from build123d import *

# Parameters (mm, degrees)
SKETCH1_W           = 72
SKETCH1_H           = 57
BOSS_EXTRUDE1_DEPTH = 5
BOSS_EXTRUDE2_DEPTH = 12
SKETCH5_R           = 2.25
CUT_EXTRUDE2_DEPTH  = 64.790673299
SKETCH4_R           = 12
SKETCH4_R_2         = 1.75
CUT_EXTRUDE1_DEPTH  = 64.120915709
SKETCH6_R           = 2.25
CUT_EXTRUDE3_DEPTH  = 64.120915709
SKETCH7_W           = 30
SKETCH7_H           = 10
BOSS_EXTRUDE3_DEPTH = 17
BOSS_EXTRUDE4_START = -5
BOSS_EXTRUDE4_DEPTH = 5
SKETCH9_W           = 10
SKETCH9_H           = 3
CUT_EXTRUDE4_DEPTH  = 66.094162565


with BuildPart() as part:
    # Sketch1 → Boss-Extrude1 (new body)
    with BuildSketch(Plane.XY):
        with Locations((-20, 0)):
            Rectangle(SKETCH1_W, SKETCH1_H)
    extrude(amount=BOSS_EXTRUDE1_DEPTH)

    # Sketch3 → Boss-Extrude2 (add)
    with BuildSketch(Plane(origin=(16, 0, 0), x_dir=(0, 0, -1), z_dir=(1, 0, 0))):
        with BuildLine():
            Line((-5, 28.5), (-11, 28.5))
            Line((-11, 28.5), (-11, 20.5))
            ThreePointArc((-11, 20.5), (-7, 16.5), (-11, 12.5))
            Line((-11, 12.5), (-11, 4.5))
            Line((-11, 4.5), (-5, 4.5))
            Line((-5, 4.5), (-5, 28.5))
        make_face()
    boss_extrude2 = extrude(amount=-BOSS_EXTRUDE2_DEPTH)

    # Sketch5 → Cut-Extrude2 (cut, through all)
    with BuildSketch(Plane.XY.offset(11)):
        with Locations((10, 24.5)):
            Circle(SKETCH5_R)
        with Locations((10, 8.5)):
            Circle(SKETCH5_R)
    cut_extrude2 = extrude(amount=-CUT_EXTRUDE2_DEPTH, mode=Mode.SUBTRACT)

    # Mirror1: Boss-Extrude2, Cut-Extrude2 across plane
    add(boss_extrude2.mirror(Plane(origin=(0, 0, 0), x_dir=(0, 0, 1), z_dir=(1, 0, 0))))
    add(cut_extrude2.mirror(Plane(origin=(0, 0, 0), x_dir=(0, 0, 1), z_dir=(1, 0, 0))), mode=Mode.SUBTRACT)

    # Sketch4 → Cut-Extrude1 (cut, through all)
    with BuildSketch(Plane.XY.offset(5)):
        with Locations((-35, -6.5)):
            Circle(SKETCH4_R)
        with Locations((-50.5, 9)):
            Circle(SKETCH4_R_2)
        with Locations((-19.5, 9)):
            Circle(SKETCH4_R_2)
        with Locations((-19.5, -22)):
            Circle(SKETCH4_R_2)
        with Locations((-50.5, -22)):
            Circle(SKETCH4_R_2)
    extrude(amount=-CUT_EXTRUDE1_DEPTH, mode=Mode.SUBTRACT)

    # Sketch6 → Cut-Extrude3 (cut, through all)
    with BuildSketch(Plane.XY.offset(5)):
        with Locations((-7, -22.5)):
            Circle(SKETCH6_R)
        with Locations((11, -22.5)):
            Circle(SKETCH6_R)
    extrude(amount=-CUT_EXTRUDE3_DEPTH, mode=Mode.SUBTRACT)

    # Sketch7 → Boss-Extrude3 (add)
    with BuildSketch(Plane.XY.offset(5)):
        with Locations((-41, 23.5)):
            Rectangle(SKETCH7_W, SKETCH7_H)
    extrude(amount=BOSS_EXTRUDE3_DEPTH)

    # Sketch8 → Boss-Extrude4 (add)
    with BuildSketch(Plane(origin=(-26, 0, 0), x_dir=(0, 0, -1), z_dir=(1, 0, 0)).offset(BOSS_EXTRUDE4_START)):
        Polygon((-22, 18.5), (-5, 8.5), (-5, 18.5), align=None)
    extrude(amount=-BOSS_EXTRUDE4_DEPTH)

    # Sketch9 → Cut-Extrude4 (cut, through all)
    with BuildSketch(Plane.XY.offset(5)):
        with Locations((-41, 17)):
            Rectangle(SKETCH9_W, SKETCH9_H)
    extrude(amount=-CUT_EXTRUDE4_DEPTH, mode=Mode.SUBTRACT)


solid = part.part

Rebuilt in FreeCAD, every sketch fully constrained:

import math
import FreeCAD as App
import Part
import Sketcher

V = App.Vector


def add_polygon(sketch, points):
    """Adds a closed chain of lines whose ends are joined by coincident constraints."""
    first, n = sketch.GeometryCount, len(points)
    for a, b in zip(points, points[1:] + points[:1]):
        sketch.addGeometry(Part.LineSegment(App.Vector(*a, 0), App.Vector(*b, 0)), False)
    for i in range(n):
        sketch.addConstraint(Sketcher.Constraint("Coincident", first + i, 2, first + (i + 1) % n, 1))

doc = App.newDocument("Part")
params = doc.addObject("Spreadsheet::Sheet", "Params")
for row, (alias, value) in enumerate([
    ("sketch1_width", "72 mm"),
    ("sketch1_height", "57 mm"),
    ("pad1_length", "5 mm"),
    ("sketch2_radius", "4 mm"),
    ("sketch2_width", "8 mm"),
    ("sketch2_height", "6 mm"),
    ("pad2_length", "12 mm"),
    ("sketch3_diameter", "4.5 mm"),
    ("sketch4_diameter", "24 mm"),
    ("sketch4_diameter2", "3.5 mm"),
    ("sketch5_diameter", "4.5 mm"),
    ("sketch6_width", "30 mm"),
    ("sketch6_height", "10 mm"),
    ("pad3_length", "17 mm"),
    ("sketch7_width", "10 mm"),
    ("sketch7_height", "17 mm"),
    ("pad4_length", "5 mm"),
    ("sketch8_width", "10 mm"),
    ("sketch8_height", "3 mm"),
], start=1):
    params.set(f"A{row}", alias)
    params.set(f"B{row}", "=" + value)
    params.setAlias(f"B{row}", alias)

body = doc.addObject("PartDesign::Body", "Body")

# Sketch on XY plane
sketch1 = body.newObject("Sketcher::SketchObject", "Sketch")
sketch1.AttachmentSupport = (doc.getObject("XY_Plane"), [""])
sketch1.MapMode = "FlatFace"
add_polygon(sketch1, [(-56, 28), (-56, -28), (16, -28), (16, 28)])  # lines 0-3
sketch1.addConstraint([
    Sketcher.Constraint("Vertical", 0),
    Sketcher.Constraint("Horizontal", 1),
    Sketcher.Constraint("Vertical", 2),
    Sketcher.Constraint("Horizontal", 3),
    Sketcher.Constraint("DistanceX", 1, 1, 1, 2, 72.0),
    Sketcher.Constraint("DistanceY", 0, 2, 0, 1, 57.0),
    Sketcher.Constraint("DistanceX", 0, 2, -1, 1, 56.0),
    Sketcher.Constraint("DistanceY", 0, 2, -1, 1, 28.5),
])
sketch1.setExpression("Constraints[8]", "Params.sketch1_width")
sketch1.setExpression("Constraints[9]", "Params.sketch1_height")
pad1 = body.newObject("PartDesign::Pad", "Pad")
pad1.Profile = sketch1
pad1.setExpression("Length", "Params.pad1_length")

# Sketch on YZ plane
sketch2 = body.newObject("Sketcher::SketchObject", "Sketch001")
sketch2.AttachmentSupport = (doc.getObject("YZ_Plane"), [""])
sketch2.MapMode = "FlatFace"
sketch2.AttachmentOffset = App.Placement(V(0, 0, 16), App.Rotation())
sketch2.addGeometry([
    Part.LineSegment(V(28.5, 5, 0), V(28.5, 11, 0)),  # 0
    Part.LineSegment(V(28.5, 11, 0), V(20.5, 11, 0)),  # 1
    Part.ArcOfCircle(Part.Circle(V(16.5, 11, 0), V(0, 0, 1), 4), math.radians(180), math.radians(360)),  # 2
    Part.LineSegment(V(12.5, 11, 0), V(4.5, 11, 0)),  # 3
    Part.LineSegment(V(4.5, 11, 0), V(4.5, 5, 0)),  # 4
    Part.LineSegment(V(4.5, 5, 0), V(28.5, 5, 0)),  # 5
], False)
sketch2.addConstraint([
    Sketcher.Constraint("Coincident", 0, 2, 1, 1),
    Sketcher.Constraint("Coincident", 1, 2, 2, 2),
    Sketcher.Constraint("Coincident", 2, 1, 3, 1),
    Sketcher.Constraint("Coincident", 3, 2, 4, 1),
    Sketcher.Constraint("Coincident", 4, 2, 5, 1),
    Sketcher.Constraint("Coincident", 5, 2, 0, 1),
    Sketcher.Constraint("Vertical", 0),
    Sketcher.Constraint("Horizontal", 1),
    Sketcher.Constraint("Horizontal", 3),
    Sketcher.Constraint("Vertical", 4),
    Sketcher.Constraint("Horizontal", 5),
    Sketcher.Constraint("Horizontal", 2, 3, 0, 2),
    Sketcher.Constraint("Horizontal", 1, 2, 2, 1),
    Sketcher.Constraint("Equal", 1, 3),
    Sketcher.Constraint("Radius", 2, 4.0),
    Sketcher.Constraint("DistanceX", 1, 2, 1, 1, 8.0),
    Sketcher.Constraint("DistanceY", 0, 1, 0, 2, 6.0),
    Sketcher.Constraint("DistanceY", -1, 1, 2, 3, 11.0),
    Sketcher.Constraint("DistanceX", -1, 1, 2, 3, 16.5),
])
sketch2.setExpression("Constraints[14]", "Params.sketch2_radius")
sketch2.setExpression("Constraints[15]", "Params.sketch2_width")
sketch2.setExpression("Constraints[16]", "Params.sketch2_height")
pad2 = body.newObject("PartDesign::Pad", "Pad001")
pad2.Profile = sketch2
pad2.setExpression("Length", "Params.pad2_length")
pad2.Reversed = True

# Sketch on XY plane
sketch3 = body.newObject("Sketcher::SketchObject", "Sketch002")
sketch3.AttachmentSupport = (doc.getObject("XY_Plane"), [""])
sketch3.MapMode = "FlatFace"
sketch3.AttachmentOffset = App.Placement(V(0, 0, 11), App.Rotation())
sketch3.addGeometry([
    Part.Circle(V(10, 24.5, 0), V(0, 0, 1), 2.2),
    Part.Circle(V(10, 8.5, 0), V(0, 0, 1), 2.2),
], False)
sketch3.addConstraint([
    Sketcher.Constraint("Equal", 0, 1),
    Sketcher.Constraint("Vertical", 0, 3, 1, 3),
    Sketcher.Constraint("Diameter", 0, 4.5),
    Sketcher.Constraint("DistanceX", -1, 1, 0, 3, 10.0),
    Sketcher.Constraint("DistanceY", 1, 3, 0, 3, 16.0),
    Sketcher.Constraint("DistanceY", -1, 1, 0, 3, 24.5),
])
sketch3.setExpression("Constraints[2]", "Params.sketch3_diameter")
pocket1 = body.newObject("PartDesign::Pocket", "Pocket")
pocket1.Profile = sketch3
pocket1.Type = "ThroughAll"
doc.recompute()

mirrored = body.newObject("PartDesign::Mirrored", "Mirrored")
mirrored.Originals = [pad2, pocket1]
mirrored.MirrorPlane = (doc.getObject("YZ_Plane"), [""])
body.Tip = mirrored

# Sketch on XY plane
sketch4 = body.newObject("Sketcher::SketchObject", "Sketch003")
sketch4.AttachmentSupport = (doc.getObject("XY_Plane"), [""])
sketch4.MapMode = "FlatFace"
sketch4.AttachmentOffset = App.Placement(V(0, 0, 5), App.Rotation())
sketch4.addGeometry([
    Part.Circle(V(-35, -6.5, 0), V(0, 0, 1), 12),  # 0
    Part.Circle(V(-50.5, 9, 0), V(0, 0, 1), 1.8),  # 1
    Part.Circle(V(-19.5, 9, 0), V(0, 0, 1), 1.8),  # 2
    Part.Circle(V(-19.5, -22, 0), V(0, 0, 1), 1.8),  # 3
    Part.Circle(V(-50.5, -22, 0), V(0, 0, 1), 1.8),  # 4
], False)
sketch4.addConstraint([
    Sketcher.Constraint("Equal", 1, 2),
    Sketcher.Constraint("Equal", 2, 3),
    Sketcher.Constraint("Equal", 3, 4),
    Sketcher.Constraint("Horizontal", 1, 3, 2, 3),
    Sketcher.Constraint("Horizontal", 3, 3, 4, 3),
    Sketcher.Constraint("Vertical", 2, 3, 3, 3),
    Sketcher.Constraint("Vertical", 1, 3, 4, 3),
    Sketcher.Constraint("Diameter", 0, 24.0),
    Sketcher.Constraint("Diameter", 1, 3.5),
    Sketcher.Constraint("DistanceX", 0, 3, -1, 1, 35.0),
    Sketcher.Constraint("DistanceY", -1, 1, 1, 3, 9.0),
    Sketcher.Constraint("DistanceY", 3, 3, -1, 1, 22.0),
    Sketcher.Constraint("DistanceX", 1, 3, 2, 3, 31.0),
    Sketcher.Constraint("DistanceY", 0, 3, -1, 1, 6.5),
    Sketcher.Constraint("DistanceX", 1, 3, -1, 1, 50.5),
])
sketch4.setExpression("Constraints[7]", "Params.sketch4_diameter")
sketch4.setExpression("Constraints[8]", "Params.sketch4_diameter2")
pocket2 = body.newObject("PartDesign::Pocket", "Pocket001")
pocket2.Profile = sketch4
pocket2.Type = "ThroughAll"

# Sketch on XY plane
sketch5 = body.newObject("Sketcher::SketchObject", "Sketch004")
sketch5.AttachmentSupport = (doc.getObject("XY_Plane"), [""])
sketch5.MapMode = "FlatFace"
sketch5.AttachmentOffset = App.Placement(V(0, 0, 5), App.Rotation())
sketch5.addGeometry([
    Part.Circle(V(-7, -22.5, 0), V(0, 0, 1), 2.2),
    Part.Circle(V(11, -22.5, 0), V(0, 0, 1), 2.2),
], False)
sketch5.addConstraint([
    Sketcher.Constraint("Equal", 0, 1),
    Sketcher.Constraint("Horizontal", 0, 3, 1, 3),
    Sketcher.Constraint("Diameter", 0, 4.5),
    Sketcher.Constraint("DistanceX", 0, 3, -1, 1, 7.0),
    Sketcher.Constraint("DistanceX", -1, 1, 1, 3, 11.0),
    Sketcher.Constraint("DistanceY", 0, 3, -1, 1, 22.5),
])
sketch5.setExpression("Constraints[2]", "Params.sketch5_diameter")
pocket3 = body.newObject("PartDesign::Pocket", "Pocket002")
pocket3.Profile = sketch5
pocket3.Type = "ThroughAll"

# Sketch on XY plane
sketch6 = body.newObject("Sketcher::SketchObject", "Sketch005")
sketch6.AttachmentSupport = (doc.getObject("XY_Plane"), [""])
sketch6.MapMode = "FlatFace"
sketch6.AttachmentOffset = App.Placement(V(0, 0, 5), App.Rotation())
add_polygon(sketch6, [(-56, 28), (-56, 18), (-26, 18), (-26, 28)])  # lines 0-3
sketch6.addConstraint([
    Sketcher.Constraint("Vertical", 0),
    Sketcher.Constraint("Horizontal", 1),
    Sketcher.Constraint("Vertical", 2),
    Sketcher.Constraint("Horizontal", 3),
    Sketcher.Constraint("DistanceX", 1, 1, 1, 2, 30.0),
    Sketcher.Constraint("DistanceY", 0, 2, 0, 1, 10.0),
    Sketcher.Constraint("DistanceX", 0, 2, -1, 1, 56.0),
    Sketcher.Constraint("DistanceY", -1, 1, 0, 2, 18.5),
])
sketch6.setExpression("Constraints[8]", "Params.sketch6_width")
sketch6.setExpression("Constraints[9]", "Params.sketch6_height")
pad3 = body.newObject("PartDesign::Pad", "Pad002")
pad3.Profile = sketch6
pad3.setExpression("Length", "Params.pad3_length")

# Sketch on YZ plane
sketch7 = body.newObject("Sketcher::SketchObject", "Sketch006")
sketch7.AttachmentSupport = (doc.getObject("YZ_Plane"), [""])
sketch7.MapMode = "FlatFace"
sketch7.AttachmentOffset = App.Placement(V(0, 0, -31), App.Rotation())
add_polygon(sketch7, [(18, 22), (8, 5), (18, 5)])  # lines 0-2
sketch7.addConstraint([
    Sketcher.Constraint("Horizontal", 1),
    Sketcher.Constraint("Vertical", 2),
    Sketcher.Constraint("DistanceX", 1, 1, 1, 2, 10.0),
    Sketcher.Constraint("DistanceY", 2, 1, 2, 2, 17.0),
    Sketcher.Constraint("DistanceY", -1, 1, 0, 2, 5.0),
    Sketcher.Constraint("DistanceX", -1, 1, 0, 2, 8.5),
])
sketch7.setExpression("Constraints[5]", "Params.sketch7_width")
sketch7.setExpression("Constraints[6]", "Params.sketch7_height")
pad4 = body.newObject("PartDesign::Pad", "Pad003")
pad4.Profile = sketch7
pad4.setExpression("Length", "Params.pad4_length")
pad4.Reversed = True

# Sketch on XY plane
sketch8 = body.newObject("Sketcher::SketchObject", "Sketch007")
sketch8.AttachmentSupport = (doc.getObject("XY_Plane"), [""])
sketch8.MapMode = "FlatFace"
sketch8.AttachmentOffset = App.Placement(V(0, 0, 5), App.Rotation())
add_polygon(sketch8, [(-46, 18.5), (-46, 15.5), (-36, 15.5), (-36, 18.5)])  # lines 0-3
sketch8.addConstraint([
    Sketcher.Constraint("Vertical", 0),
    Sketcher.Constraint("Horizontal", 1),
    Sketcher.Constraint("Vertical", 2),
    Sketcher.Constraint("Horizontal", 3),
    Sketcher.Constraint("DistanceX", 1, 1, 1, 2, 10.0),
    Sketcher.Constraint("DistanceY", 0, 2, 0, 1, 3.0),
    Sketcher.Constraint("DistanceX", 0, 2, -1, 1, 46.0),
    Sketcher.Constraint("DistanceY", -1, 1, 0, 2, 15.5),
])
sketch8.setExpression("Constraints[8]", "Params.sketch8_width")
sketch8.setExpression("Constraints[9]", "Params.sketch8_height")
pocket4 = body.newObject("PartDesign::Pocket", "Pocket003")
pocket4.Profile = sketch8
pocket4.Type = "ThroughAll"

doc.recompute()
